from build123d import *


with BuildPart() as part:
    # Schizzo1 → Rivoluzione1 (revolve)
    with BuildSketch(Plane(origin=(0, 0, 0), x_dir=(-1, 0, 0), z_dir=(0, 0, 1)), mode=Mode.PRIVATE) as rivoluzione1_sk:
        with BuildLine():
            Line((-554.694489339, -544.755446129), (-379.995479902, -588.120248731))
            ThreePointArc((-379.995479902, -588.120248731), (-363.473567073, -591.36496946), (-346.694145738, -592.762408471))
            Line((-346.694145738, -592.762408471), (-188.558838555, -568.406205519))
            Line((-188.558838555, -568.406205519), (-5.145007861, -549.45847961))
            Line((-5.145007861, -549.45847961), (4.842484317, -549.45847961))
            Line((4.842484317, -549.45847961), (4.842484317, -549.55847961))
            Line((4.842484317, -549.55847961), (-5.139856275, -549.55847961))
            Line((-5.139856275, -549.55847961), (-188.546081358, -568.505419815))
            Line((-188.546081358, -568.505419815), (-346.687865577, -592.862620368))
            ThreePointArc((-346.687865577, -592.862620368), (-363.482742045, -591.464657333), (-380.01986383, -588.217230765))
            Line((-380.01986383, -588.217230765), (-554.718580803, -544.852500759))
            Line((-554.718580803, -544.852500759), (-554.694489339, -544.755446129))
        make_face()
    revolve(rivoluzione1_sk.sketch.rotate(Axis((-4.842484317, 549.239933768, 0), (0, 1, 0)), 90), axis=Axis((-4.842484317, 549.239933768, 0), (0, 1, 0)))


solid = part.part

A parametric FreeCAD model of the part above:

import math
import FreeCAD as App
import Part
import Sketcher

doc = App.newDocument("Part")
body = doc.addObject("PartDesign::Body", "Body")

# Sketch on XY plane
sketch1 = body.newObject("Sketcher::SketchObject", "Sketch")
sketch1.AttachmentSupport = (doc.getObject("XY_Plane"), [""])
sketch1.MapMode = "FlatFace"
sketch1.addGeometry([
    Part.LineSegment(App.Vector(380, 588.12, 0), App.Vector(554.69, 544.76, 0)),  # 0
    Part.LineSegment(App.Vector(554.69, 544.76, 0), App.Vector(554.72, 544.85, 0)),  # 1
    Part.LineSegment(App.Vector(554.72, 544.85, 0), App.Vector(380.02, 588.22, 0)),  # 2
    Part.ArcOfCircle(Part.Circle(App.Vector(342.49, 440.82, 0), App.Vector(0, 0, 1), 152.1), math.radians(75.71), math.radians(88.42)),  # 3
    Part.LineSegment(App.Vector(346.69, 592.86, 0), App.Vector(188.55, 568.51, 0)),  # 4
    Part.LineSegment(App.Vector(188.55, 568.51, 0), App.Vector(5.14, 549.56, 0)),  # 5
    Part.LineSegment(App.Vector(5.14, 549.56, 0), App.Vector(-4.84, 549.56, 0)),  # 6
    Part.LineSegment(App.Vector(-4.84, 549.56, 0), App.Vector(-4.84, 549.46, 0)),  # 7
    Part.LineSegment(App.Vector(-4.84, 549.46, 0), App.Vector(5.15, 549.46, 0)),  # 8
    Part.LineSegment(App.Vector(5.15, 549.46, 0), App.Vector(188.56, 568.41, 0)),  # 9
    Part.LineSegment(App.Vector(188.56, 568.41, 0), App.Vector(346.69, 592.76, 0)),  # 10
    Part.ArcOfCircle(Part.Circle(App.Vector(342.49, 440.82, 0), App.Vector(0, 0, 1), 152), math.radians(75.71), math.radians(88.41)),  # 11
], False)
sketch1.addGeometry(Part.LineSegment(App.Vector(-4.84, 440.82, 0), App.Vector(-4.84, 592.86, 0)), True)  # axis
sketch1.addConstraint([
    Sketcher.Constraint("Coincident", 0, 2, 1, 1),
    Sketcher.Constraint("Coincident", 1, 2, 2, 1),
    Sketcher.Constraint("Coincident", 2, 2, 3, 1),
    Sketcher.Constraint("Coincident", 3, 2, 4, 1),
    Sketcher.Constraint("Coincident", 4, 2, 5, 1),
    Sketcher.Constraint("Coincident", 5, 2, 6, 1),
    Sketcher.Constraint("Coincident", 6, 2, 7, 1),
    Sketcher.Constraint("Coincident", 7, 2, 8, 1),
    Sketcher.Constraint("Coincident", 8, 2, 9, 1),
    Sketcher.Constraint("Coincident", 9, 2, 10, 1),
    Sketcher.Constraint("Coincident", 10, 2, 11, 2),
    Sketcher.Constraint("Coincident", 11, 1, 0, 1),
    Sketcher.Constraint("Horizontal", 6),
    Sketcher.Constraint("Vertical", 7),
    Sketcher.Constraint("Horizontal", 8),
    Sketcher.Constraint("Vertical", 12),
    Sketcher.Constraint("Coincident", 11, 3, 3, 3),
    Sketcher.Constraint("Perpendicular", 0, 1),
    Sketcher.Constraint("Parallel", 0, 2),
    Sketcher.Constraint("Parallel", 5, 9),
    Sketcher.Constraint("Parallel", 4, 10),
    Sketcher.Constraint("Horizontal", 11, 3, 12, 1),
    Sketcher.Constraint("Horizontal", 3, 2, 12, 2),
    Sketcher.Constraint("Vertical", 7, 2, 12, 1),
    Sketcher.Constraint("Radius", 11, 152.0),
    Sketcher.Constraint("Radius", 3, 152.1),
    Sketcher.Constraint("Distance", 10, 160.0),
    Sketcher.Constraint("DistanceY", 7, 2, 7, 1, 0.1),
    Sketcher.Constraint("Distance", 1, 0.1),
    Sketcher.Constraint("DistanceY", 12, 1, 12, 2, 152.042002),
    Sketcher.Constraint("DistanceX", 3, 2, 2, 2, 33.331998),
    Sketcher.Constraint("DistanceX", 6, 2, 6, 1, 9.982341),
    Sketcher.Constraint("DistanceY", -1, 1, 1, 2, 544.852501),
    Sketcher.Constraint("DistanceY", 4, 2, 3, 2, 24.357201),
    Sketcher.Constraint("Distance", 9, 184.389939),
    Sketcher.Constraint("DistanceX", 8, 1, 8, 2, 9.987492),
    Sketcher.Constraint("DistanceY", -1, 1, 3, 3, 440.820619),
    Sketcher.Constraint("DistanceX", -1, 1, 0, 2, 554.694489),
    Sketcher.Constraint("DistanceX", -1, 1, 4, 2, 188.546081),
    Sketcher.Constraint("DistanceY", -1, 1, 5, 2, 549.55848),
    Sketcher.Constraint("DistanceX", -1, 1, 9, 2, 188.558839),
])
revolution = body.newObject("PartDesign::Revolution", "Revolution")
revolution.Profile = sketch1
revolution.ReferenceAxis = (sketch1, ["Axis0"])
revolution.Angle = 360

doc.recompute()
